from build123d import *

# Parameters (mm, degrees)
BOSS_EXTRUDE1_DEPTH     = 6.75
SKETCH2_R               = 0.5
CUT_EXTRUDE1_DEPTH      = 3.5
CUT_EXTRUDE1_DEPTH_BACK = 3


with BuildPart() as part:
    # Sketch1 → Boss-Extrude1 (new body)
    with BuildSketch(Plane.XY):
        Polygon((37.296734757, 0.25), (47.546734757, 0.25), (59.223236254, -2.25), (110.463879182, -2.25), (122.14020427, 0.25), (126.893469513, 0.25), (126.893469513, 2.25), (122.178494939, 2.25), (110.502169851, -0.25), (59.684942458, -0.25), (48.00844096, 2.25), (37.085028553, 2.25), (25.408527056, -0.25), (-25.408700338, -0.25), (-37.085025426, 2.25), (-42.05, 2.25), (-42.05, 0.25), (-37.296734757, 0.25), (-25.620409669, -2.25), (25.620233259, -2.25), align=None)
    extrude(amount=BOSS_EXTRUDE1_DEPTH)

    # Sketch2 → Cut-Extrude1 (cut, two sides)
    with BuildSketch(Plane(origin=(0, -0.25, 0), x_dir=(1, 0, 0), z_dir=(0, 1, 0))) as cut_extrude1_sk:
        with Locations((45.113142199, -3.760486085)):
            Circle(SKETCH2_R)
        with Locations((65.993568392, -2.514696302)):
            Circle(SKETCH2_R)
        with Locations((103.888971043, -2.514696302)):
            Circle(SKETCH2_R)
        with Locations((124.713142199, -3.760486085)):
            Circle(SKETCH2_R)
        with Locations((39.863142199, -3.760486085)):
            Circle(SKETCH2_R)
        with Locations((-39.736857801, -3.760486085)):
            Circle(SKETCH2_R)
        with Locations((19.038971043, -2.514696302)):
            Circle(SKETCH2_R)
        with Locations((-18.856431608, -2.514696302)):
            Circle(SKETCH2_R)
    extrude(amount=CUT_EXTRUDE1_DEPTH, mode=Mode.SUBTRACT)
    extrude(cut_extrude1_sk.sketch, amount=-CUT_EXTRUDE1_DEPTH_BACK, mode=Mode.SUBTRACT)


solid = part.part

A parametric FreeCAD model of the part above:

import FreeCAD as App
import Part
import Sketcher
Q = App.Units.Quantity


def add_polygon(sketch, points):
    """Adds a closed chain of lines whose ends are joined by coincident constraints."""
    first, n = sketch.GeometryCount, len(points)
    for a, b in zip(points, points[1:] + points[:1]):
        sketch.addGeometry(Part.LineSegment(App.Vector(*a, 0), App.Vector(*b, 0)), False)
    for i in range(n):
        sketch.addConstraint(Sketcher.Constraint("Coincident", first + i, 2, first + (i + 1) % n, 1))

doc = App.newDocument("Part")
body = doc.addObject("PartDesign::Body", "Body")

# Sketch on XY plane
sketch1 = body.newObject("Sketcher::SketchObject", "Sketch")
sketch1.AttachmentSupport = (doc.getObject("XY_Plane"), [""])
sketch1.MapMode = "FlatFace"
add_polygon(sketch1, [(37.3, 0.2), (47.5, 0.2), (59.2, -2.2), (110.5, -2.2), (122.1, 0.2), (126.9, 0.2), (126.9, 2.2), (122.2, 2.2), (110.5, -0.2), (59.7, -0.2), (48, 2.2), (37.1, 2.2), (25.4, -0.2), (-25.4, -0.2), (-37.1, 2.2), (-42, 2.2), (-42, 0.2), (-37.3, 0.2), (-25.6, -2.2), (25.6, -2.2)])  # lines 0-19
sketch1.addConstraint([
    Sketcher.Constraint("Horizontal", 0),
    Sketcher.Constraint("Horizontal", 2),
    Sketcher.Constraint("Horizontal", 4),
    Sketcher.Constraint("Vertical", 5),
    Sketcher.Constraint("Horizontal", 6),
    Sketcher.Constraint("Horizontal", 8),
    Sketcher.Constraint("Horizontal", 10),
    Sketcher.Constraint("Horizontal", 12),
    Sketcher.Constraint("Horizontal", 14),
    Sketcher.Constraint("Vertical", 15),
    Sketcher.Constraint("Horizontal", 16),
    Sketcher.Constraint("Horizontal", 18),
    Sketcher.Constraint("Symmetric", 10, 2, 13, 2, -2),
    Sketcher.Constraint("Symmetric", 16, 2, 19, 2, -2),
    Sketcher.Constraint("Parallel", 3, 7),
    Sketcher.Constraint("Parallel", 1, 9),
    Sketcher.Constraint("Parallel", 13, 17),
    Sketcher.Constraint("Parallel", 11, 19),
    Sketcher.Constraint("Horizontal", 0, 2, 3, 2),
    Sketcher.Constraint("Horizontal", 6, 2, 9, 2),
    Sketcher.Constraint("Horizontal", 8, 2, 11, 2),
    Sketcher.Constraint("Horizontal", 2, 2, 17, 2),
    Sketcher.Constraint("Equal", 8, 12),
    Sketcher.Constraint("Equal", 4, 16),
    Sketcher.Constraint("Equal", 2, 18),
    Sketcher.Constraint("Equal", 3, 7),
    Sketcher.Constraint("Equal", 9, 11),
    Sketcher.Constraint("Equal", 7, 13),
    Sketcher.Constraint("DistanceY", 5, 1, 5, 2, Q("2 mm")),
    Sketcher.Constraint("DistanceX", 0, 1, 0, 2, Q("10.25 mm")),
    Sketcher.Constraint("DistanceY", 1, 2, 0, 2, Q("2.5 mm")),
    Sketcher.Constraint("DistanceY", -1, 1, 0, 2, Q("0.25 mm")),
    Sketcher.Constraint("DistanceX", 14, 2, -1, 1, Q("42.05 mm")),
    Sketcher.Constraint("DistanceX", 12, 2, -1, 1, Q("25.4087 mm")),
    Sketcher.Constraint("DistanceX", 0, 2, 1, 2, Q("11.676501 mm")),
    Sketcher.Constraint("DistanceX", 7, 2, 4, 2, Q("16.3913 mm")),
    Sketcher.Constraint("Distance", 3, Q("11.940962 mm")),
    Sketcher.Constraint("DistanceX", 2, 1, 2, 2, Q("51.240643 mm")),
])
pad1 = body.newObject("PartDesign::Pad", "Pad")
pad1.Profile = sketch1
pad1.Length = 6.75

# Sketch on XZ plane
sketch2 = body.newObject("Sketcher::SketchObject", "Sketch001")
sketch2.AttachmentSupport = (doc.getObject("XZ_Plane"), [""])
sketch2.MapMode = "FlatFace"
sketch2.AttachmentOffset = App.Placement(App.Vector(0, 0, 0.25), App.Rotation())
sketch2.addGeometry([
    Part.Circle(App.Vector(45.1, 3.8, 0), App.Vector(0, 0, 1), 0.5),  # 0
    Part.Circle(App.Vector(66, 2.5, 0), App.Vector(0, 0, 1), 0.5),  # 1
    Part.Circle(App.Vector(103.9, 2.5, 0), App.Vector(0, 0, 1), 0.5),  # 2
    Part.Circle(App.Vector(124.7, 3.8, 0), App.Vector(0, 0, 1), 0.5),  # 3
    Part.Circle(App.Vector(39.9, 3.8, 0), App.Vector(0, 0, 1), 0.5),  # 4
    Part.Circle(App.Vector(-39.7, 3.8, 0), App.Vector(0, 0, 1), 0.5),  # 5
    Part.Circle(App.Vector(19, 2.5, 0), App.Vector(0, 0, 1), 0.5),  # 6
    Part.Circle(App.Vector(-18.9, 2.5, 0), App.Vector(0, 0, 1), 0.5),  # 7
], False)
sketch2.addConstraint([
    Sketcher.Constraint("Equal", 0, 1),
    Sketcher.Constraint("Equal", 1, 2),
    Sketcher.Constraint("Equal", 2, 3),
    Sketcher.Constraint("Equal", 3, 4),
    Sketcher.Constraint("Equal", 4, 5),
    Sketcher.Constraint("Equal", 5, 6),
    Sketcher.Constraint("Equal", 6, 7),
    Sketcher.Constraint("Horizontal", 1, 3, 2, 3),
    Sketcher.Constraint("Horizontal", 0, 3, 3, 3),
    Sketcher.Constraint("Horizontal", 3, 3, 4, 3),
    Sketcher.Constraint("Horizontal", 4, 3, 5, 3),
    Sketcher.Constraint("Horizontal", 2, 3, 6, 3),
    Sketcher.Constraint("Horizontal", 6, 3, 7, 3),
    Sketcher.Constraint("Diameter", 0, Q("1 mm")),
    Sketcher.Constraint("DistanceX", 0, 3, 3, 3, Q("79.6 mm")),
    Sketcher.Constraint("DistanceX", 5, 3, 4, 3, Q("79.6 mm")),
    Sketcher.Constraint("DistanceX", 4, 3, 0, 3, Q("5.25 mm")),
    Sketcher.Constraint("DistanceX", 6, 3, 2, 3, Q("84.85 mm")),
    Sketcher.Constraint("DistanceX", 7, 3, 1, 3, Q("84.85 mm")),
    Sketcher.Constraint("DistanceX", -1, 1, 1, 3, Q("65.993568 mm")),
    Sketcher.Constraint("DistanceX", -1, 1, 2, 3, Q("103.888971 mm")),
    Sketcher.Constraint("DistanceY", 1, 3, 0, 3, Q("1.24579 mm")),
    Sketcher.Constraint("DistanceX", 0, 3, 2, 3, Q("58.775829 mm")),
    Sketcher.Constraint("DistanceY", -1, 1, 0, 3, Q("3.760486 mm")),
])
pocket1 = body.newObject("PartDesign::Pocket", "Pocket")
pocket1.Profile = sketch2
pocket1.Type = "ThroughAll"
pocket1.Midplane = True

doc.recompute()
